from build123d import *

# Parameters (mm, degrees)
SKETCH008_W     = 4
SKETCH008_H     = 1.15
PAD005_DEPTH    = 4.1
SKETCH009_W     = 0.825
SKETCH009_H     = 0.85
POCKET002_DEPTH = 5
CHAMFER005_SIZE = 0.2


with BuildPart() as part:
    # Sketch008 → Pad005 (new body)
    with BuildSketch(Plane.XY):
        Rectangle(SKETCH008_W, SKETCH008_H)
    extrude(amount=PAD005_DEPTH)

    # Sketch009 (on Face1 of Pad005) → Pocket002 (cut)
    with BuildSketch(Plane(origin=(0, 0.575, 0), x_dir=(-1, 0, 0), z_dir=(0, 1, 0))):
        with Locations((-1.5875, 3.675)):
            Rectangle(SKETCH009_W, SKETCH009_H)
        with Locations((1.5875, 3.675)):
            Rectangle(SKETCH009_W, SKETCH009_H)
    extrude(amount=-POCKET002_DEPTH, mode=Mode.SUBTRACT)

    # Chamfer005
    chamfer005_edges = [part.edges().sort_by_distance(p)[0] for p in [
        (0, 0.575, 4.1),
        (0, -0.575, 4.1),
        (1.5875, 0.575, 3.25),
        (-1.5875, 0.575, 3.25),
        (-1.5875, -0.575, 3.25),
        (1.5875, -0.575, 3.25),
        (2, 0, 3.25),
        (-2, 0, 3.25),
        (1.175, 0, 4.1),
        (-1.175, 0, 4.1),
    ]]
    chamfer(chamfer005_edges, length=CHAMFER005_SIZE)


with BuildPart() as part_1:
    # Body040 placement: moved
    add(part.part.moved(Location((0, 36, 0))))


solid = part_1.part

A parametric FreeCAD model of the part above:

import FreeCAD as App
import Part
import Sketcher

V = App.Vector


def edges_at(feature, points):
    """Names of the edges that pass closest to the given points."""
    edges = feature.Shape.Edges
    near = lambda p: min(range(len(edges)), key=lambda i: edges[i].distToShape(Part.Vertex(*p))[0])
    return sorted({f"Edge{near(p) + 1}" for p in points})

doc = App.newDocument("Part")
body = doc.addObject("PartDesign::Body", "Body")

# Sketch on XY plane
sketch1 = doc.addObject("Sketcher::SketchObject", "Sketch")
body.addObject(sketch1)
sketch1.AttachmentSupport = (doc.XY_Plane, [""])
sketch1.MapMode = "FlatFace"
sketch1.addGeometry(Part.LineSegment(V(-2, 0.6, 0), V(-2, -0.6, 0)), False)
sketch1.addGeometry(Part.LineSegment(V(-2, -0.6, 0), V(2, -0.6, 0)), False)
sketch1.addGeometry(Part.LineSegment(V(2, -0.6, 0), V(2, 0.6, 0)), False)
sketch1.addGeometry(Part.LineSegment(V(2, 0.6, 0), V(-2, 0.6, 0)), False)
sketch1.addConstraint(Sketcher.Constraint("Coincident", 0, 2, 1, 1))
sketch1.addConstraint(Sketcher.Constraint("Coincident", 1, 2, 2, 1))
sketch1.addConstraint(Sketcher.Constraint("Coincident", 2, 2, 3, 1))
sketch1.addConstraint(Sketcher.Constraint("Coincident", 3, 2, 0, 1))
sketch1.addConstraint(Sketcher.Constraint("Vertical", 0))
sketch1.addConstraint(Sketcher.Constraint("Horizontal", 1))
sketch1.addConstraint(Sketcher.Constraint("Vertical", 2))
sketch1.addConstraint(Sketcher.Constraint("Horizontal", 3))
sketch1.addConstraint(Sketcher.Constraint("Symmetric", 0, 2, 2, 2, -1, 1))
sketch1.addConstraint(Sketcher.Constraint("DistanceX", 1, 1, 1, 2, 4.0))
sketch1.addConstraint(Sketcher.Constraint("DistanceY", 0, 2, 0, 1, 1.15))
pad1 = doc.addObject("PartDesign::Pad", "Pad")
body.addObject(pad1)
pad1.Profile = sketch1
pad1.Length = 4.1

# Sketch on XZ plane
sketch2 = doc.addObject("Sketcher::SketchObject", "Sketch001")
body.addObject(sketch2)
sketch2.AttachmentSupport = (doc.XZ_Plane, [""])
sketch2.MapMode = "FlatFace"
sketch2.AttachmentOffset = App.Placement(V(0, 0, -0.575), App.Rotation())
sketch2.addGeometry(Part.LineSegment(V(2, 4.1, 0), V(2, 3.2, 0)), False)
sketch2.addGeometry(Part.LineSegment(V(2, 3.2, 0), V(1.2, 3.2, 0)), False)
sketch2.addGeometry(Part.LineSegment(V(1.2, 3.2, 0), V(1.2, 4.1, 0)), False)
sketch2.addGeometry(Part.LineSegment(V(1.2, 4.1, 0), V(2, 4.1, 0)), False)
sketch2.addGeometry(Part.LineSegment(V(-1.2, 4.1, 0), V(-1.2, 3.2, 0)), False)
sketch2.addGeometry(Part.LineSegment(V(-1.2, 3.2, 0), V(-2, 3.2, 0)), False)
sketch2.addGeometry(Part.LineSegment(V(-2, 3.2, 0), V(-2, 4.1, 0)), False)
sketch2.addGeometry(Part.LineSegment(V(-2, 4.1, 0), V(-1.2, 4.1, 0)), False)
sketch2.addConstraint(Sketcher.Constraint("Coincident", 0, 2, 1, 1))
sketch2.addConstraint(Sketcher.Constraint("Coincident", 1, 2, 2, 1))
sketch2.addConstraint(Sketcher.Constraint("Coincident", 2, 2, 3, 1))
sketch2.addConstraint(Sketcher.Constraint("Coincident", 3, 2, 0, 1))
sketch2.addConstraint(Sketcher.Constraint("Coincident", 4, 2, 5, 1))
sketch2.addConstraint(Sketcher.Constraint("Coincident", 5, 2, 6, 1))
sketch2.addConstraint(Sketcher.Constraint("Coincident", 6, 2, 7, 1))
sketch2.addConstraint(Sketcher.Constraint("Coincident", 7, 2, 4, 1))
sketch2.addConstraint(Sketcher.Constraint("Vertical", 0))
sketch2.addConstraint(Sketcher.Constraint("Horizontal", 1))
sketch2.addConstraint(Sketcher.Constraint("Vertical", 2))
sketch2.addConstraint(Sketcher.Constraint("Horizontal", 3))
sketch2.addConstraint(Sketcher.Constraint("Vertical", 4))
sketch2.addConstraint(Sketcher.Constraint("Horizontal", 5))
sketch2.addConstraint(Sketcher.Constraint("Vertical", 6))
sketch2.addConstraint(Sketcher.Constraint("Horizontal", 7))
sketch2.addConstraint(Sketcher.Constraint("Symmetric", 1, 2, 4, 2, -2))
sketch2.addConstraint(Sketcher.Constraint("Symmetric", 3, 2, 6, 2, -2))
sketch2.addConstraint(Sketcher.Constraint("DistanceX", -1, 1, 0, 2, 2.0))
sketch2.addConstraint(Sketcher.Constraint("DistanceY", 0, 2, 0, 1, 0.85))
sketch2.addConstraint(Sketcher.Constraint("DistanceY", -1, 1, 2, 2, 4.1))
sketch2.addConstraint(Sketcher.Constraint("DistanceX", 1, 2, 1, 1, 0.825))
pocket1 = doc.addObject("PartDesign::Pocket", "Pocket")
body.addObject(pocket1)
pocket1.Profile = sketch2
pocket1.Length = 5
pocket1.Reversed = True
doc.recompute()

chamfer = doc.addObject("PartDesign::Chamfer", "Chamfer")
body.addObject(chamfer)
chamfer.Base = (pocket1, edges_at(pocket1, [
    (0, 0.575, 4.1),
    (0, -0.575, 4.1),
    (1.587, 0.575, 3.25),
    (-1.587, 0.575, 3.25),
    (-1.587, -0.575, 3.25),
    (1.587, -0.575, 3.25),
    (2, 0, 3.25),
    (-2, 0, 3.25),
    (1.175, 0, 4.1),
    (-1.175, 0, 4.1),
]))
chamfer.Size = 0.2
body2 = doc.addObject("PartDesign::Body", "Body001")
doc.recompute()

body.Placement = App.Placement(V(0, 36, 0), App.Rotation(V(0, 0, 1), 0))
boolean = doc.addObject("PartDesign::Boolean", "Boolean")
body2.addObject(boolean)
boolean.Type = "Fuse"
boolean.addObjects([body])

doc.recompute()
